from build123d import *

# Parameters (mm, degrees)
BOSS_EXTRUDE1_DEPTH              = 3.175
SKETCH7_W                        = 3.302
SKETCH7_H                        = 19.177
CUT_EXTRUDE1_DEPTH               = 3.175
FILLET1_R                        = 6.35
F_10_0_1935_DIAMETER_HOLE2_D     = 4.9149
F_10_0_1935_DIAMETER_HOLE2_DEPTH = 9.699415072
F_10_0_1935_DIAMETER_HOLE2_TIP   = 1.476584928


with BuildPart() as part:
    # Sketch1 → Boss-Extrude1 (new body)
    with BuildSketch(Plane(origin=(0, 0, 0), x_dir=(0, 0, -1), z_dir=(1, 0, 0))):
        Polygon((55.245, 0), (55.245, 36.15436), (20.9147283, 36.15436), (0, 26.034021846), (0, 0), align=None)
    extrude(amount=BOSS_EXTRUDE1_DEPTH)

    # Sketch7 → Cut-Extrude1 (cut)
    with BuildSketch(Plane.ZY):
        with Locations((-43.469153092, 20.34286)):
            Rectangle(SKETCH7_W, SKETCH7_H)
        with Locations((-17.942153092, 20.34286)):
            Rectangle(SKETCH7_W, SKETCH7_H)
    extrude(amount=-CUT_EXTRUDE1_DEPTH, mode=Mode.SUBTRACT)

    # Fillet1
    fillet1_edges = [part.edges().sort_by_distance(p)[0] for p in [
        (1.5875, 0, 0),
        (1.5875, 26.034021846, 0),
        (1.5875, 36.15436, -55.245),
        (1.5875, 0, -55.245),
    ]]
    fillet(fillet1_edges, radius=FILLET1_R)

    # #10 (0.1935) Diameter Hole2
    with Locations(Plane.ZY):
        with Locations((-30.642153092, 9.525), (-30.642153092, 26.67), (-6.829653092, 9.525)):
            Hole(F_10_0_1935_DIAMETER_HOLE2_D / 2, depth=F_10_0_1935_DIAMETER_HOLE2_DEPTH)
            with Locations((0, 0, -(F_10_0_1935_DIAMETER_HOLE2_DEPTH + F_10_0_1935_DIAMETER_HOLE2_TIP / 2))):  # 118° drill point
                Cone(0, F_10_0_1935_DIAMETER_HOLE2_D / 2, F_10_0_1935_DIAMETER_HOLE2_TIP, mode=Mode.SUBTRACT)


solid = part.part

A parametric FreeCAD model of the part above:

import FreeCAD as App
import Part
import Sketcher
from FreeCAD import Vector
Q = App.Units.Quantity


def edges_at(feature, points):
    """Names of the edges that pass closest to the given points."""
    edges = feature.Shape.Edges
    near = lambda p: min(range(len(edges)), key=lambda i: edges[i].distToShape(Part.Vertex(*p))[0])
    return sorted({f"Edge{near(p) + 1}" for p in points})


def add_polygon(sketch, points):
    """Adds a closed chain of lines whose ends are joined by coincident constraints."""
    first, n = sketch.GeometryCount, len(points)
    for a, b in zip(points, points[1:] + points[:1]):
        sketch.addGeometry(Part.LineSegment(App.Vector(*a, 0), App.Vector(*b, 0)), False)
    for i in range(n):
        sketch.addConstraint(Sketcher.Constraint("Coincident", first + i, 2, first + (i + 1) % n, 1))

doc = App.newDocument("Part")
params = doc.addObject("Spreadsheet::Sheet", "Params")
for row, (alias, value) in enumerate([
    ("sketch1_height", "2.175 in"),
    ("pad1_length", "0.125 in"),
    ("sketch2_height", "0.13 in"),
    ("sketch2_width", "0.755 in"),
    ("pocket1_length", "0.125 in"),
    ("fillet_radius", "0.25 in"),
    ("hole_diameter", "0.1935 in"),
    ("hole_depth", "9.699415 mm"),
], start=1):
    params.set(f"A{row}", alias)
    params.set(f"B{row}", "=" + value)
    params.setAlias(f"B{row}", alias)

body = doc.addObject("PartDesign::Body", "Body")

# Sketch on YZ plane
sketch1 = body.newObject("Sketcher::SketchObject", "Sketch")
sketch1.AttachmentSupport = (doc.getObject("YZ_Plane"), [""])
sketch1.MapMode = "FlatFace"
add_polygon(sketch1, [(0, -55.245), (36.15436, -55.245), (36.15436, -20.914728), (26.034022, 0), (0, 0)])  # lines 0-4
sketch1.addConstraint(Sketcher.Constraint("Horizontal", 0))
sketch1.addConstraint(Sketcher.Constraint("Vertical", 1))
sketch1.addConstraint(Sketcher.Constraint("Horizontal", 3))
sketch1.addConstraint(Sketcher.Constraint("Vertical", 4))
sketch1.addConstraint(Sketcher.Constraint("Coincident", 3, 2, -1, 1))
sketch1.addConstraint(Sketcher.Constraint("DistanceY", 4, 2, 4, 1, Q("2.175 in")))
sketch1.addConstraint(Sketcher.Constraint("DistanceX", 0, 1, 0, 2, Q("1.4234 in")))
sketch1.addConstraint(Sketcher.Constraint("DistanceX", 3, 2, 3, 1, 26.034022))
sketch1.addConstraint(Sketcher.Constraint("DistanceY", 1, 1, 1, 2, 34.330272))
sketch1.setExpression("Constraints[10]", "Params.sketch1_height")
pad1 = body.newObject("PartDesign::Pad", "Pad")
pad1.Profile = sketch1
pad1.setExpression("Length", "Params.pad1_length")

# Sketch on YZ plane
sketch2 = body.newObject("Sketcher::SketchObject", "Sketch001")
sketch2.AttachmentSupport = (doc.getObject("YZ_Plane"), [""])
sketch2.MapMode = "FlatFace"
add_polygon(sketch2, [(29.93136, -45.120153), (10.75436, -45.120153), (10.75436, -41.818153), (29.93136, -41.818153)])  # lines 0-3
add_polygon(sketch2, [(29.93136, -19.593153), (10.75436, -19.593153), (10.75436, -16.291153), (29.93136, -16.291153)])  # lines 4-7
sketch2.addConstraint(Sketcher.Constraint("Horizontal", 0))
sketch2.addConstraint(Sketcher.Constraint("Vertical", 1))
sketch2.addConstraint(Sketcher.Constraint("Horizontal", 2))
sketch2.addConstraint(Sketcher.Constraint("Vertical", 3))
sketch2.addConstraint(Sketcher.Constraint("Horizontal", 4))
sketch2.addConstraint(Sketcher.Constraint("Vertical", 5))
sketch2.addConstraint(Sketcher.Constraint("Horizontal", 6))
sketch2.addConstraint(Sketcher.Constraint("Vertical", 7))
sketch2.addConstraint(Sketcher.Constraint("Vertical", 1, 2, 4, 2))
sketch2.addConstraint(Sketcher.Constraint("Vertical", 3, 2, 6, 2))
sketch2.addConstraint(Sketcher.Constraint("Equal", 3, 5))
sketch2.addConstraint(Sketcher.Constraint("DistanceY", 1, 1, 1, 2, Q("0.13 in")))
sketch2.addConstraint(Sketcher.Constraint("DistanceX", 0, 2, 0, 1, Q("0.755 in")))
sketch2.addConstraint(Sketcher.Constraint("DistanceY", 1, 2, 4, 2, Q("0.875 in")))
sketch2.addConstraint(Sketcher.Constraint("DistanceX", -1, 1, 0, 2, Q("0.4234 in")))
sketch2.addConstraint(Sketcher.Constraint("DistanceY", 0, 2, -1, 1, 45.120153))
sketch2.setExpression("Constraints[19]", "Params.sketch2_height")
sketch2.setExpression("Constraints[20]", "Params.sketch2_width")
pocket1 = body.newObject("PartDesign::Pocket", "Pocket")
pocket1.Profile = sketch2
pocket1.setExpression("Length", "Params.pocket1_length")
pocket1.Reversed = True
doc.recompute()

fillet = body.newObject("PartDesign::Fillet", "Fillet")
fillet.Base = (pocket1, edges_at(pocket1, [
    (1.587, 0, 0),
    (1.587, 26.034, 0),
    (1.587, 36.154, -55.245),
    (1.587, 0, -55.245),
]))
fillet.setExpression("Radius", "Params.fillet_radius")

# Sketch on YZ plane
sketch3 = body.newObject("Sketcher::SketchObject", "Sketch002")
sketch3.AttachmentSupport = (doc.getObject("YZ_Plane"), [""])
sketch3.MapMode = "FlatFace"
sketch3.addGeometry(Part.Circle(Vector(9.525, -30.642153, 0), Vector(0, 0, 1), 2.45745), False)
sketch3.addGeometry(Part.Circle(Vector(26.67, -30.642153, 0), Vector(0, 0, 1), 2.45745), False)
sketch3.addGeometry(Part.Circle(Vector(9.525, -6.829653, 0), Vector(0, 0, 1), 2.45745), False)
sketch3.addConstraint(Sketcher.Constraint("Equal", 0, 1))
sketch3.addConstraint(Sketcher.Constraint("Equal", 1, 2))
sketch3.addConstraint(Sketcher.Constraint("Horizontal", 0, 3, 1, 3))
sketch3.addConstraint(Sketcher.Constraint("Vertical", 0, 3, 2, 3))
sketch3.addConstraint(Sketcher.Constraint("Diameter", 0, Q("0.1935 in")))
sketch3.addConstraint(Sketcher.Constraint("DistanceX", -1, 1, 1, 3, Q("1.05 in")))
sketch3.addConstraint(Sketcher.Constraint("DistanceX", -1, 1, 0, 3, Q("0.375 in")))
sketch3.addConstraint(Sketcher.Constraint("DistanceY", 0, 3, 2, 3, Q("0.9375 in")))
sketch3.addConstraint(Sketcher.Constraint("DistanceY", 0, 3, -1, 1, 30.642153))
doc.recompute()
hole = body.newObject("PartDesign::Hole", "Hole")
hole.Profile = sketch3
hole.ThreadType = "None"
hole.setExpression("Diameter", "Params.hole_diameter")
hole.DepthType = "Dimension"
hole.setExpression("Depth", "Params.hole_depth")
hole.DrillPoint = "Angled"
hole.DrillPointAngle = 118
hole.Reversed = True

doc.recompute()
